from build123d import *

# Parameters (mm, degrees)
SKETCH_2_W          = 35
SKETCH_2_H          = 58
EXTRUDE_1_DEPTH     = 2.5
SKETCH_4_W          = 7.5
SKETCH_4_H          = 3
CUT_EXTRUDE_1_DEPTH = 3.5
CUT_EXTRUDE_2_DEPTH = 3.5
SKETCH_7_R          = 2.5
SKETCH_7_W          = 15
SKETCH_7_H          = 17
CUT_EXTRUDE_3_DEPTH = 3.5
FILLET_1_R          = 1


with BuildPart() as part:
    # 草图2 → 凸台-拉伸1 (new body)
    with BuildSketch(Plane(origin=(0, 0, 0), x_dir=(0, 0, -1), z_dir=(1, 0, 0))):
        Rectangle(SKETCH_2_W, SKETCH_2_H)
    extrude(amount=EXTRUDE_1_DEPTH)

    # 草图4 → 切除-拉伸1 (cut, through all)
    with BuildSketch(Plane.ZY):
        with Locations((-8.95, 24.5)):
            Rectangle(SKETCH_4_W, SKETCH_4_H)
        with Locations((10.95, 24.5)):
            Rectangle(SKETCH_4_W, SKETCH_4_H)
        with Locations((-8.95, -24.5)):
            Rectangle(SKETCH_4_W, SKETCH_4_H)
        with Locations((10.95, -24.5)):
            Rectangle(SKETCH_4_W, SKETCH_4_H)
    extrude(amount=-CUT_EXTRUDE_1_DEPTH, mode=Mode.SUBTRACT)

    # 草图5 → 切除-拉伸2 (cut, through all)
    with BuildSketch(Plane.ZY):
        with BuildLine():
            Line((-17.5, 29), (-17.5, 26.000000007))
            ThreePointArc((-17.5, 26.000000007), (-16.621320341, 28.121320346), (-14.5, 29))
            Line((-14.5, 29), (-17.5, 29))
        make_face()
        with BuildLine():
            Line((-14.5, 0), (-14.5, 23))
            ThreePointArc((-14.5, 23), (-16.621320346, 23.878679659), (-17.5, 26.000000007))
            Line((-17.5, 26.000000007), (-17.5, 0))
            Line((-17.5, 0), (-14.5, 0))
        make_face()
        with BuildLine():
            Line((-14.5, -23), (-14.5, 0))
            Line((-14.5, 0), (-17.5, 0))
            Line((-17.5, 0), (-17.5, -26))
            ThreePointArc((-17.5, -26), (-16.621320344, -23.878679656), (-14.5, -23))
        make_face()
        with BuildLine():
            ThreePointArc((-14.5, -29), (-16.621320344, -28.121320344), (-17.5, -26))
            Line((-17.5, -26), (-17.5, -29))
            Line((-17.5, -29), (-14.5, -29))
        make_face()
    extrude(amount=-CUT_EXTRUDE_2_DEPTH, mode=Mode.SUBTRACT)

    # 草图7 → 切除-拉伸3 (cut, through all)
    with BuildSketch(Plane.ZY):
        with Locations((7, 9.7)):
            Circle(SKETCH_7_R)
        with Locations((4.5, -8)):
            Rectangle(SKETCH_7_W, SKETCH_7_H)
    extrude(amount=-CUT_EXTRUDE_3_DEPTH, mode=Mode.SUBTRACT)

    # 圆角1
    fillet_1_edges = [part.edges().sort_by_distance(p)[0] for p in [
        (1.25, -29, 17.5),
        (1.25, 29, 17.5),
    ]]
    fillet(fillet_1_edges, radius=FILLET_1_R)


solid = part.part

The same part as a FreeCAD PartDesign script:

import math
import FreeCAD as App
import Part
import Sketcher

V = App.Vector
Q = App.Units.Quantity


def edges_at(feature, points):
    """Names of the edges that pass closest to the given points."""
    edges = feature.Shape.Edges
    near = lambda p: min(range(len(edges)), key=lambda i: edges[i].distToShape(Part.Vertex(*p))[0])
    return sorted({f"Edge{near(p) + 1}" for p in points})

doc = App.newDocument("Part")
body = doc.addObject("PartDesign::Body", "Body")

sketch1 = doc.addObject("Sketcher::SketchObject", "Sketch")
body.addObject(sketch1)
sketch1.AttachmentSupport = (doc.YZ_Plane, [""])
sketch1.MapMode = "FlatFace"
sketch1.addGeometry(Part.LineSegment(V(29, 18, 0), V(-29, 18, 0)), False)
sketch1.addGeometry(Part.LineSegment(V(-29, 18, 0), V(-29, -18, 0)), False)
sketch1.addGeometry(Part.LineSegment(V(-29, -18, 0), V(29, -18, 0)), False)
sketch1.addGeometry(Part.LineSegment(V(29, -18, 0), V(29, 18, 0)), False)
sketch1.addConstraint(Sketcher.Constraint("Coincident", 0, 2, 1, 1))
sketch1.addConstraint(Sketcher.Constraint("Coincident", 1, 2, 2, 1))
sketch1.addConstraint(Sketcher.Constraint("Coincident", 2, 2, 3, 1))
sketch1.addConstraint(Sketcher.Constraint("Coincident", 3, 2, 0, 1))
sketch1.addConstraint(Sketcher.Constraint("Horizontal", 0))
sketch1.addConstraint(Sketcher.Constraint("Vertical", 1))
sketch1.addConstraint(Sketcher.Constraint("Horizontal", 2))
sketch1.addConstraint(Sketcher.Constraint("Vertical", 3))
sketch1.addConstraint(Sketcher.Constraint("Symmetric", 0, 2, 2, 2, -1, 1))
sketch1.addConstraint(Sketcher.Constraint("DistanceX", 0, 2, 0, 1, Q("58 mm")))
sketch1.addConstraint(Sketcher.Constraint("DistanceY", 1, 2, 1, 1, Q("35 mm")))
pad1 = doc.addObject("PartDesign::Pad", "Pad")
body.addObject(pad1)
pad1.Profile = sketch1
pad1.Length = 2.5

sketch2 = doc.addObject("Sketcher::SketchObject", "Sketch001")
body.addObject(sketch2)
sketch2.AttachmentSupport = (doc.YZ_Plane, [""])
sketch2.MapMode = "FlatFace"
sketch2.addGeometry(Part.LineSegment(V(26, -12.7, 0), V(23, -12.7, 0)), False)
sketch2.addGeometry(Part.LineSegment(V(23, -12.7, 0), V(23, -5.2, 0)), False)
sketch2.addGeometry(Part.LineSegment(V(23, -5.2, 0), V(26, -5.2, 0)), False)
sketch2.addGeometry(Part.LineSegment(V(26, -5.2, 0), V(26, -12.7, 0)), False)
sketch2.addGeometry(Part.LineSegment(V(26, 7.2, 0), V(23, 7.2, 0)), False)
sketch2.addGeometry(Part.LineSegment(V(23, 7.2, 0), V(23, 14.7, 0)), False)
sketch2.addGeometry(Part.LineSegment(V(23, 14.7, 0), V(26, 14.7, 0)), False)
sketch2.addGeometry(Part.LineSegment(V(26, 14.7, 0), V(26, 7.2, 0)), False)
sketch2.addGeometry(Part.LineSegment(V(-23, -12.7, 0), V(-26, -12.7, 0)), False)
sketch2.addGeometry(Part.LineSegment(V(-26, -12.7, 0), V(-26, -5.2, 0)), False)
sketch2.addGeometry(Part.LineSegment(V(-26, -5.2, 0), V(-23, -5.2, 0)), False)
sketch2.addGeometry(Part.LineSegment(V(-23, -5.2, 0), V(-23, -12.7, 0)), False)
sketch2.addGeometry(Part.LineSegment(V(-23, 7.2, 0), V(-26, 7.2, 0)), False)
sketch2.addGeometry(Part.LineSegment(V(-26, 7.2, 0), V(-26, 14.7, 0)), False)
sketch2.addGeometry(Part.LineSegment(V(-26, 14.7, 0), V(-23, 14.7, 0)), False)
sketch2.addGeometry(Part.LineSegment(V(-23, 14.7, 0), V(-23, 7.2, 0)), False)
sketch2.addConstraint(Sketcher.Constraint("Coincident", 0, 2, 1, 1))
sketch2.addConstraint(Sketcher.Constraint("Coincident", 1, 2, 2, 1))
sketch2.addConstraint(Sketcher.Constraint("Coincident", 2, 2, 3, 1))
sketch2.addConstraint(Sketcher.Constraint("Coincident", 3, 2, 0, 1))
sketch2.addConstraint(Sketcher.Constraint("Coincident", 4, 2, 5, 1))
sketch2.addConstraint(Sketcher.Constraint("Coincident", 5, 2, 6, 1))
sketch2.addConstraint(Sketcher.Constraint("Coincident", 6, 2, 7, 1))
sketch2.addConstraint(Sketcher.Constraint("Coincident", 7, 2, 4, 1))
sketch2.addConstraint(Sketcher.Constraint("Coincident", 8, 2, 9, 1))
sketch2.addConstraint(Sketcher.Constraint("Coincident", 9, 2, 10, 1))
sketch2.addConstraint(Sketcher.Constraint("Coincident", 10, 2, 11, 1))
sketch2.addConstraint(Sketcher.Constraint("Coincident", 11, 2, 8, 1))
sketch2.addConstraint(Sketcher.Constraint("Coincident", 12, 2, 13, 1))
sketch2.addConstraint(Sketcher.Constraint("Coincident", 13, 2, 14, 1))
sketch2.addConstraint(Sketcher.Constraint("Coincident", 14, 2, 15, 1))
sketch2.addConstraint(Sketcher.Constraint("Coincident", 15, 2, 12, 1))
sketch2.addConstraint(Sketcher.Constraint("Horizontal", 0))
sketch2.addConstraint(Sketcher.Constraint("Vertical", 1))
sketch2.addConstraint(Sketcher.Constraint("Horizontal", 2))
sketch2.addConstraint(Sketcher.Constraint("Vertical", 3))
sketch2.addConstraint(Sketcher.Constraint("Horizontal", 4))
sketch2.addConstraint(Sketcher.Constraint("Vertical", 5))
sketch2.addConstraint(Sketcher.Constraint("Horizontal", 6))
sketch2.addConstraint(Sketcher.Constraint("Vertical", 7))
sketch2.addConstraint(Sketcher.Constraint("Horizontal", 8))
sketch2.addConstraint(Sketcher.Constraint("Vertical", 9))
sketch2.addConstraint(Sketcher.Constraint("Horizontal", 10))
sketch2.addConstraint(Sketcher.Constraint("Vertical", 11))
sketch2.addConstraint(Sketcher.Constraint("Horizontal", 12))
sketch2.addConstraint(Sketcher.Constraint("Vertical", 13))
sketch2.addConstraint(Sketcher.Constraint("Horizontal", 14))
sketch2.addConstraint(Sketcher.Constraint("Vertical", 15))
sketch2.addConstraint(Sketcher.Constraint("Symmetric", 3, 2, 8, 2, -2))
sketch2.addConstraint(Sketcher.Constraint("Symmetric", 1, 2, 10, 2, -2))
sketch2.addConstraint(Sketcher.Constraint("Symmetric", 7, 2, 12, 2, -2))
sketch2.addConstraint(Sketcher.Constraint("Symmetric", 5, 2, 14, 2, -2))
sketch2.addConstraint(Sketcher.Constraint("Vertical", 1, 2, 4, 2))
sketch2.addConstraint(Sketcher.Constraint("Vertical", 3, 2, 6, 2))
sketch2.addConstraint(Sketcher.Constraint("Equal", 3, 5))
sketch2.addConstraint(Sketcher.Constraint("DistanceX", 0, 2, 0, 1, Q("3 mm")))
sketch2.addConstraint(Sketcher.Constraint("DistanceY", 1, 1, 1, 2, Q("7.5 mm")))
sketch2.addConstraint(Sketcher.Constraint("DistanceX", -1, 1, 0, 2, Q("23 mm")))
sketch2.addConstraint(Sketcher.Constraint("DistanceY", 0, 2, -1, 1, Q("12.7 mm")))
sketch2.addConstraint(Sketcher.Constraint("DistanceY", -1, 1, 4, 2, Q("7.2 mm")))
pocket1 = doc.addObject("PartDesign::Pocket", "Pocket")
body.addObject(pocket1)
pocket1.Profile = sketch2
pocket1.Type = "ThroughAll"
pocket1.Reversed = True

sketch3 = doc.addObject("Sketcher::SketchObject", "Sketch002")
body.addObject(sketch3)
sketch3.AttachmentSupport = (doc.YZ_Plane, [""])
sketch3.MapMode = "FlatFace"
sketch3.addGeometry(Part.LineSegment(V(29, -17.5, 0), V(26, -17.5, 0)), False)
sketch3.addGeometry(Part.ArcOfCircle(Part.Circle(V(26, -14.5, 0), V(0, 0, 1), 3), math.radians(-90), math.radians(0)), False)
sketch3.addGeometry(Part.LineSegment(V(29, -14.5, 0), V(29, -17.5, 0)), False)
sketch3.addGeometry(Part.ArcOfCircle(Part.Circle(V(26, -14.5, 0), V(0, 0, 1), 3), math.radians(180), math.radians(270)), False)
sketch3.addGeometry(Part.LineSegment(V(26, -17.5, 0), V(-26, -17.5, 0)), False)
sketch3.addGeometry(Part.ArcOfCircle(Part.Circle(V(-26, -14.5, 0), V(0, 0, 1), 3), math.radians(-90), math.radians(0)), False)
sketch3.addGeometry(Part.LineSegment(V(-23, -14.5, 0), V(23, -14.5, 0)), False)
sketch3.addGeometry(Part.ArcOfCircle(Part.Circle(V(-26, -14.5, 0), V(0, 0, 1), 3), math.radians(180), math.radians(270)), False)
sketch3.addGeometry(Part.LineSegment(V(-26, -17.5, 0), V(-29, -17.5, 0)), False)
sketch3.addGeometry(Part.LineSegment(V(-29, -17.5, 0), V(-29, -14.5, 0)), False)
sketch3.addConstraint(Sketcher.Constraint("Tangent", 0, 2, 1, 1))
sketch3.addConstraint(Sketcher.Constraint("Tangent", 1, 2, 2, 1))
sketch3.addConstraint(Sketcher.Constraint("Coincident", 2, 2, 0, 1))
sketch3.addConstraint(Sketcher.Constraint("Tangent", 3, 2, 4, 1))
sketch3.addConstraint(Sketcher.Constraint("Tangent", 4, 2, 5, 1))
sketch3.addConstraint(Sketcher.Constraint("Coincident", 5, 2, 6, 1))
sketch3.addConstraint(Sketcher.Constraint("Coincident", 6, 2, 3, 1))
sketch3.addConstraint(Sketcher.Constraint("Tangent", 7, 2, 8, 1))
sketch3.addConstraint(Sketcher.Constraint("Coincident", 8, 2, 9, 1))
sketch3.addConstraint(Sketcher.Constraint("Tangent", 9, 2, 7, 1))
sketch3.addConstraint(Sketcher.Constraint("Horizontal", 0))
sketch3.addConstraint(Sketcher.Constraint("Vertical", 2))
sketch3.addConstraint(Sketcher.Constraint("Horizontal", 4))
sketch3.addConstraint(Sketcher.Constraint("Horizontal", 6))
sketch3.addConstraint(Sketcher.Constraint("Horizontal", 8))
sketch3.addConstraint(Sketcher.Constraint("Vertical", 9))
sketch3.addConstraint(Sketcher.Constraint("Coincident", 3, 3, 1, 3))
sketch3.addConstraint(Sketcher.Constraint("Coincident", 7, 3, 5, 3))
sketch3.addConstraint(Sketcher.Constraint("Equal", 1, 3))
sketch3.addConstraint(Sketcher.Constraint("Equal", 3, 5))
sketch3.addConstraint(Sketcher.Constraint("Equal", 5, 7))
sketch3.addConstraint(Sketcher.Constraint("Horizontal", 1, 2, 5, 2))
sketch3.addConstraint(Sketcher.Constraint("Radius", 1, Q("3 mm")))
sketch3.addConstraint(Sketcher.Constraint("DistanceX", 4, 2, 4, 1, Q("52 mm")))
sketch3.addConstraint(Sketcher.Constraint("DistanceX", -1, 1, 1, 3, Q("26 mm")))
sketch3.addConstraint(Sketcher.Constraint("DistanceY", 1, 3, -1, 1, Q("14.5 mm")))
pocket2 = doc.addObject("PartDesign::Pocket", "Pocket001")
body.addObject(pocket2)
pocket2.Profile = sketch3
pocket2.Type = "ThroughAll"
pocket2.Reversed = True

sketch4 = doc.addObject("Sketcher::SketchObject", "Sketch003")
body.addObject(sketch4)
sketch4.AttachmentSupport = (doc.YZ_Plane, [""])
sketch4.MapMode = "FlatFace"
sketch4.addGeometry(Part.Circle(V(9.7, 7, 0), V(0, 0, 1), 2.5), False)
sketch4.addGeometry(Part.LineSegment(V(0.5, -3, 0), V(-16.5, -3, 0)), False)
sketch4.addGeometry(Part.LineSegment(V(-16.5, -3, 0), V(-16.5, 12, 0)), False)
sketch4.addGeometry(Part.LineSegment(V(-16.5, 12, 0), V(0.5, 12, 0)), False)
sketch4.addGeometry(Part.LineSegment(V(0.5, 12, 0), V(0.5, -3, 0)), False)
sketch4.addConstraint(Sketcher.Constraint("Coincident", 1, 2, 2, 1))
sketch4.addConstraint(Sketcher.Constraint("Coincident", 2, 2, 3, 1))
sketch4.addConstraint(Sketcher.Constraint("Coincident", 3, 2, 4, 1))
sketch4.addConstraint(Sketcher.Constraint("Coincident", 4, 2, 1, 1))
sketch4.addConstraint(Sketcher.Constraint("Horizontal", 1))
sketch4.addConstraint(Sketcher.Constraint("Vertical", 2))
sketch4.addConstraint(Sketcher.Constraint("Horizontal", 3))
sketch4.addConstraint(Sketcher.Constraint("Vertical", 4))
sketch4.addConstraint(Sketcher.Constraint("Diameter", 0, Q("5 mm")))
sketch4.addConstraint(Sketcher.Constraint("DistanceX", 1, 2, 1, 1, Q("17 mm")))
sketch4.addConstraint(Sketcher.Constraint("DistanceY", 2, 1, 2, 2, Q("15 mm")))
sketch4.addConstraint(Sketcher.Constraint("DistanceY", -1, 1, 0, 3, Q("7 mm")))
sketch4.addConstraint(Sketcher.Constraint("DistanceY", 1, 2, -1, 1, Q("3 mm")))
sketch4.addConstraint(Sketcher.Constraint("DistanceX", -1, 1, 0, 3, Q("9.7 mm")))
sketch4.addConstraint(Sketcher.Constraint("DistanceX", 1, 2, -1, 1, Q("16.5 mm")))
pocket3 = doc.addObject("PartDesign::Pocket", "Pocket002")
body.addObject(pocket3)
pocket3.Profile = sketch4
pocket3.Type = "ThroughAll"
pocket3.Reversed = True
doc.recompute()

fillet = doc.addObject("PartDesign::Fillet", "Fillet")
body.addObject(fillet)
fillet.Base = (pocket3, edges_at(pocket3, [(1.25, -29, 17.5), (1.25, 29, 17.5)]))
fillet.Radius = 1

doc.recompute()
